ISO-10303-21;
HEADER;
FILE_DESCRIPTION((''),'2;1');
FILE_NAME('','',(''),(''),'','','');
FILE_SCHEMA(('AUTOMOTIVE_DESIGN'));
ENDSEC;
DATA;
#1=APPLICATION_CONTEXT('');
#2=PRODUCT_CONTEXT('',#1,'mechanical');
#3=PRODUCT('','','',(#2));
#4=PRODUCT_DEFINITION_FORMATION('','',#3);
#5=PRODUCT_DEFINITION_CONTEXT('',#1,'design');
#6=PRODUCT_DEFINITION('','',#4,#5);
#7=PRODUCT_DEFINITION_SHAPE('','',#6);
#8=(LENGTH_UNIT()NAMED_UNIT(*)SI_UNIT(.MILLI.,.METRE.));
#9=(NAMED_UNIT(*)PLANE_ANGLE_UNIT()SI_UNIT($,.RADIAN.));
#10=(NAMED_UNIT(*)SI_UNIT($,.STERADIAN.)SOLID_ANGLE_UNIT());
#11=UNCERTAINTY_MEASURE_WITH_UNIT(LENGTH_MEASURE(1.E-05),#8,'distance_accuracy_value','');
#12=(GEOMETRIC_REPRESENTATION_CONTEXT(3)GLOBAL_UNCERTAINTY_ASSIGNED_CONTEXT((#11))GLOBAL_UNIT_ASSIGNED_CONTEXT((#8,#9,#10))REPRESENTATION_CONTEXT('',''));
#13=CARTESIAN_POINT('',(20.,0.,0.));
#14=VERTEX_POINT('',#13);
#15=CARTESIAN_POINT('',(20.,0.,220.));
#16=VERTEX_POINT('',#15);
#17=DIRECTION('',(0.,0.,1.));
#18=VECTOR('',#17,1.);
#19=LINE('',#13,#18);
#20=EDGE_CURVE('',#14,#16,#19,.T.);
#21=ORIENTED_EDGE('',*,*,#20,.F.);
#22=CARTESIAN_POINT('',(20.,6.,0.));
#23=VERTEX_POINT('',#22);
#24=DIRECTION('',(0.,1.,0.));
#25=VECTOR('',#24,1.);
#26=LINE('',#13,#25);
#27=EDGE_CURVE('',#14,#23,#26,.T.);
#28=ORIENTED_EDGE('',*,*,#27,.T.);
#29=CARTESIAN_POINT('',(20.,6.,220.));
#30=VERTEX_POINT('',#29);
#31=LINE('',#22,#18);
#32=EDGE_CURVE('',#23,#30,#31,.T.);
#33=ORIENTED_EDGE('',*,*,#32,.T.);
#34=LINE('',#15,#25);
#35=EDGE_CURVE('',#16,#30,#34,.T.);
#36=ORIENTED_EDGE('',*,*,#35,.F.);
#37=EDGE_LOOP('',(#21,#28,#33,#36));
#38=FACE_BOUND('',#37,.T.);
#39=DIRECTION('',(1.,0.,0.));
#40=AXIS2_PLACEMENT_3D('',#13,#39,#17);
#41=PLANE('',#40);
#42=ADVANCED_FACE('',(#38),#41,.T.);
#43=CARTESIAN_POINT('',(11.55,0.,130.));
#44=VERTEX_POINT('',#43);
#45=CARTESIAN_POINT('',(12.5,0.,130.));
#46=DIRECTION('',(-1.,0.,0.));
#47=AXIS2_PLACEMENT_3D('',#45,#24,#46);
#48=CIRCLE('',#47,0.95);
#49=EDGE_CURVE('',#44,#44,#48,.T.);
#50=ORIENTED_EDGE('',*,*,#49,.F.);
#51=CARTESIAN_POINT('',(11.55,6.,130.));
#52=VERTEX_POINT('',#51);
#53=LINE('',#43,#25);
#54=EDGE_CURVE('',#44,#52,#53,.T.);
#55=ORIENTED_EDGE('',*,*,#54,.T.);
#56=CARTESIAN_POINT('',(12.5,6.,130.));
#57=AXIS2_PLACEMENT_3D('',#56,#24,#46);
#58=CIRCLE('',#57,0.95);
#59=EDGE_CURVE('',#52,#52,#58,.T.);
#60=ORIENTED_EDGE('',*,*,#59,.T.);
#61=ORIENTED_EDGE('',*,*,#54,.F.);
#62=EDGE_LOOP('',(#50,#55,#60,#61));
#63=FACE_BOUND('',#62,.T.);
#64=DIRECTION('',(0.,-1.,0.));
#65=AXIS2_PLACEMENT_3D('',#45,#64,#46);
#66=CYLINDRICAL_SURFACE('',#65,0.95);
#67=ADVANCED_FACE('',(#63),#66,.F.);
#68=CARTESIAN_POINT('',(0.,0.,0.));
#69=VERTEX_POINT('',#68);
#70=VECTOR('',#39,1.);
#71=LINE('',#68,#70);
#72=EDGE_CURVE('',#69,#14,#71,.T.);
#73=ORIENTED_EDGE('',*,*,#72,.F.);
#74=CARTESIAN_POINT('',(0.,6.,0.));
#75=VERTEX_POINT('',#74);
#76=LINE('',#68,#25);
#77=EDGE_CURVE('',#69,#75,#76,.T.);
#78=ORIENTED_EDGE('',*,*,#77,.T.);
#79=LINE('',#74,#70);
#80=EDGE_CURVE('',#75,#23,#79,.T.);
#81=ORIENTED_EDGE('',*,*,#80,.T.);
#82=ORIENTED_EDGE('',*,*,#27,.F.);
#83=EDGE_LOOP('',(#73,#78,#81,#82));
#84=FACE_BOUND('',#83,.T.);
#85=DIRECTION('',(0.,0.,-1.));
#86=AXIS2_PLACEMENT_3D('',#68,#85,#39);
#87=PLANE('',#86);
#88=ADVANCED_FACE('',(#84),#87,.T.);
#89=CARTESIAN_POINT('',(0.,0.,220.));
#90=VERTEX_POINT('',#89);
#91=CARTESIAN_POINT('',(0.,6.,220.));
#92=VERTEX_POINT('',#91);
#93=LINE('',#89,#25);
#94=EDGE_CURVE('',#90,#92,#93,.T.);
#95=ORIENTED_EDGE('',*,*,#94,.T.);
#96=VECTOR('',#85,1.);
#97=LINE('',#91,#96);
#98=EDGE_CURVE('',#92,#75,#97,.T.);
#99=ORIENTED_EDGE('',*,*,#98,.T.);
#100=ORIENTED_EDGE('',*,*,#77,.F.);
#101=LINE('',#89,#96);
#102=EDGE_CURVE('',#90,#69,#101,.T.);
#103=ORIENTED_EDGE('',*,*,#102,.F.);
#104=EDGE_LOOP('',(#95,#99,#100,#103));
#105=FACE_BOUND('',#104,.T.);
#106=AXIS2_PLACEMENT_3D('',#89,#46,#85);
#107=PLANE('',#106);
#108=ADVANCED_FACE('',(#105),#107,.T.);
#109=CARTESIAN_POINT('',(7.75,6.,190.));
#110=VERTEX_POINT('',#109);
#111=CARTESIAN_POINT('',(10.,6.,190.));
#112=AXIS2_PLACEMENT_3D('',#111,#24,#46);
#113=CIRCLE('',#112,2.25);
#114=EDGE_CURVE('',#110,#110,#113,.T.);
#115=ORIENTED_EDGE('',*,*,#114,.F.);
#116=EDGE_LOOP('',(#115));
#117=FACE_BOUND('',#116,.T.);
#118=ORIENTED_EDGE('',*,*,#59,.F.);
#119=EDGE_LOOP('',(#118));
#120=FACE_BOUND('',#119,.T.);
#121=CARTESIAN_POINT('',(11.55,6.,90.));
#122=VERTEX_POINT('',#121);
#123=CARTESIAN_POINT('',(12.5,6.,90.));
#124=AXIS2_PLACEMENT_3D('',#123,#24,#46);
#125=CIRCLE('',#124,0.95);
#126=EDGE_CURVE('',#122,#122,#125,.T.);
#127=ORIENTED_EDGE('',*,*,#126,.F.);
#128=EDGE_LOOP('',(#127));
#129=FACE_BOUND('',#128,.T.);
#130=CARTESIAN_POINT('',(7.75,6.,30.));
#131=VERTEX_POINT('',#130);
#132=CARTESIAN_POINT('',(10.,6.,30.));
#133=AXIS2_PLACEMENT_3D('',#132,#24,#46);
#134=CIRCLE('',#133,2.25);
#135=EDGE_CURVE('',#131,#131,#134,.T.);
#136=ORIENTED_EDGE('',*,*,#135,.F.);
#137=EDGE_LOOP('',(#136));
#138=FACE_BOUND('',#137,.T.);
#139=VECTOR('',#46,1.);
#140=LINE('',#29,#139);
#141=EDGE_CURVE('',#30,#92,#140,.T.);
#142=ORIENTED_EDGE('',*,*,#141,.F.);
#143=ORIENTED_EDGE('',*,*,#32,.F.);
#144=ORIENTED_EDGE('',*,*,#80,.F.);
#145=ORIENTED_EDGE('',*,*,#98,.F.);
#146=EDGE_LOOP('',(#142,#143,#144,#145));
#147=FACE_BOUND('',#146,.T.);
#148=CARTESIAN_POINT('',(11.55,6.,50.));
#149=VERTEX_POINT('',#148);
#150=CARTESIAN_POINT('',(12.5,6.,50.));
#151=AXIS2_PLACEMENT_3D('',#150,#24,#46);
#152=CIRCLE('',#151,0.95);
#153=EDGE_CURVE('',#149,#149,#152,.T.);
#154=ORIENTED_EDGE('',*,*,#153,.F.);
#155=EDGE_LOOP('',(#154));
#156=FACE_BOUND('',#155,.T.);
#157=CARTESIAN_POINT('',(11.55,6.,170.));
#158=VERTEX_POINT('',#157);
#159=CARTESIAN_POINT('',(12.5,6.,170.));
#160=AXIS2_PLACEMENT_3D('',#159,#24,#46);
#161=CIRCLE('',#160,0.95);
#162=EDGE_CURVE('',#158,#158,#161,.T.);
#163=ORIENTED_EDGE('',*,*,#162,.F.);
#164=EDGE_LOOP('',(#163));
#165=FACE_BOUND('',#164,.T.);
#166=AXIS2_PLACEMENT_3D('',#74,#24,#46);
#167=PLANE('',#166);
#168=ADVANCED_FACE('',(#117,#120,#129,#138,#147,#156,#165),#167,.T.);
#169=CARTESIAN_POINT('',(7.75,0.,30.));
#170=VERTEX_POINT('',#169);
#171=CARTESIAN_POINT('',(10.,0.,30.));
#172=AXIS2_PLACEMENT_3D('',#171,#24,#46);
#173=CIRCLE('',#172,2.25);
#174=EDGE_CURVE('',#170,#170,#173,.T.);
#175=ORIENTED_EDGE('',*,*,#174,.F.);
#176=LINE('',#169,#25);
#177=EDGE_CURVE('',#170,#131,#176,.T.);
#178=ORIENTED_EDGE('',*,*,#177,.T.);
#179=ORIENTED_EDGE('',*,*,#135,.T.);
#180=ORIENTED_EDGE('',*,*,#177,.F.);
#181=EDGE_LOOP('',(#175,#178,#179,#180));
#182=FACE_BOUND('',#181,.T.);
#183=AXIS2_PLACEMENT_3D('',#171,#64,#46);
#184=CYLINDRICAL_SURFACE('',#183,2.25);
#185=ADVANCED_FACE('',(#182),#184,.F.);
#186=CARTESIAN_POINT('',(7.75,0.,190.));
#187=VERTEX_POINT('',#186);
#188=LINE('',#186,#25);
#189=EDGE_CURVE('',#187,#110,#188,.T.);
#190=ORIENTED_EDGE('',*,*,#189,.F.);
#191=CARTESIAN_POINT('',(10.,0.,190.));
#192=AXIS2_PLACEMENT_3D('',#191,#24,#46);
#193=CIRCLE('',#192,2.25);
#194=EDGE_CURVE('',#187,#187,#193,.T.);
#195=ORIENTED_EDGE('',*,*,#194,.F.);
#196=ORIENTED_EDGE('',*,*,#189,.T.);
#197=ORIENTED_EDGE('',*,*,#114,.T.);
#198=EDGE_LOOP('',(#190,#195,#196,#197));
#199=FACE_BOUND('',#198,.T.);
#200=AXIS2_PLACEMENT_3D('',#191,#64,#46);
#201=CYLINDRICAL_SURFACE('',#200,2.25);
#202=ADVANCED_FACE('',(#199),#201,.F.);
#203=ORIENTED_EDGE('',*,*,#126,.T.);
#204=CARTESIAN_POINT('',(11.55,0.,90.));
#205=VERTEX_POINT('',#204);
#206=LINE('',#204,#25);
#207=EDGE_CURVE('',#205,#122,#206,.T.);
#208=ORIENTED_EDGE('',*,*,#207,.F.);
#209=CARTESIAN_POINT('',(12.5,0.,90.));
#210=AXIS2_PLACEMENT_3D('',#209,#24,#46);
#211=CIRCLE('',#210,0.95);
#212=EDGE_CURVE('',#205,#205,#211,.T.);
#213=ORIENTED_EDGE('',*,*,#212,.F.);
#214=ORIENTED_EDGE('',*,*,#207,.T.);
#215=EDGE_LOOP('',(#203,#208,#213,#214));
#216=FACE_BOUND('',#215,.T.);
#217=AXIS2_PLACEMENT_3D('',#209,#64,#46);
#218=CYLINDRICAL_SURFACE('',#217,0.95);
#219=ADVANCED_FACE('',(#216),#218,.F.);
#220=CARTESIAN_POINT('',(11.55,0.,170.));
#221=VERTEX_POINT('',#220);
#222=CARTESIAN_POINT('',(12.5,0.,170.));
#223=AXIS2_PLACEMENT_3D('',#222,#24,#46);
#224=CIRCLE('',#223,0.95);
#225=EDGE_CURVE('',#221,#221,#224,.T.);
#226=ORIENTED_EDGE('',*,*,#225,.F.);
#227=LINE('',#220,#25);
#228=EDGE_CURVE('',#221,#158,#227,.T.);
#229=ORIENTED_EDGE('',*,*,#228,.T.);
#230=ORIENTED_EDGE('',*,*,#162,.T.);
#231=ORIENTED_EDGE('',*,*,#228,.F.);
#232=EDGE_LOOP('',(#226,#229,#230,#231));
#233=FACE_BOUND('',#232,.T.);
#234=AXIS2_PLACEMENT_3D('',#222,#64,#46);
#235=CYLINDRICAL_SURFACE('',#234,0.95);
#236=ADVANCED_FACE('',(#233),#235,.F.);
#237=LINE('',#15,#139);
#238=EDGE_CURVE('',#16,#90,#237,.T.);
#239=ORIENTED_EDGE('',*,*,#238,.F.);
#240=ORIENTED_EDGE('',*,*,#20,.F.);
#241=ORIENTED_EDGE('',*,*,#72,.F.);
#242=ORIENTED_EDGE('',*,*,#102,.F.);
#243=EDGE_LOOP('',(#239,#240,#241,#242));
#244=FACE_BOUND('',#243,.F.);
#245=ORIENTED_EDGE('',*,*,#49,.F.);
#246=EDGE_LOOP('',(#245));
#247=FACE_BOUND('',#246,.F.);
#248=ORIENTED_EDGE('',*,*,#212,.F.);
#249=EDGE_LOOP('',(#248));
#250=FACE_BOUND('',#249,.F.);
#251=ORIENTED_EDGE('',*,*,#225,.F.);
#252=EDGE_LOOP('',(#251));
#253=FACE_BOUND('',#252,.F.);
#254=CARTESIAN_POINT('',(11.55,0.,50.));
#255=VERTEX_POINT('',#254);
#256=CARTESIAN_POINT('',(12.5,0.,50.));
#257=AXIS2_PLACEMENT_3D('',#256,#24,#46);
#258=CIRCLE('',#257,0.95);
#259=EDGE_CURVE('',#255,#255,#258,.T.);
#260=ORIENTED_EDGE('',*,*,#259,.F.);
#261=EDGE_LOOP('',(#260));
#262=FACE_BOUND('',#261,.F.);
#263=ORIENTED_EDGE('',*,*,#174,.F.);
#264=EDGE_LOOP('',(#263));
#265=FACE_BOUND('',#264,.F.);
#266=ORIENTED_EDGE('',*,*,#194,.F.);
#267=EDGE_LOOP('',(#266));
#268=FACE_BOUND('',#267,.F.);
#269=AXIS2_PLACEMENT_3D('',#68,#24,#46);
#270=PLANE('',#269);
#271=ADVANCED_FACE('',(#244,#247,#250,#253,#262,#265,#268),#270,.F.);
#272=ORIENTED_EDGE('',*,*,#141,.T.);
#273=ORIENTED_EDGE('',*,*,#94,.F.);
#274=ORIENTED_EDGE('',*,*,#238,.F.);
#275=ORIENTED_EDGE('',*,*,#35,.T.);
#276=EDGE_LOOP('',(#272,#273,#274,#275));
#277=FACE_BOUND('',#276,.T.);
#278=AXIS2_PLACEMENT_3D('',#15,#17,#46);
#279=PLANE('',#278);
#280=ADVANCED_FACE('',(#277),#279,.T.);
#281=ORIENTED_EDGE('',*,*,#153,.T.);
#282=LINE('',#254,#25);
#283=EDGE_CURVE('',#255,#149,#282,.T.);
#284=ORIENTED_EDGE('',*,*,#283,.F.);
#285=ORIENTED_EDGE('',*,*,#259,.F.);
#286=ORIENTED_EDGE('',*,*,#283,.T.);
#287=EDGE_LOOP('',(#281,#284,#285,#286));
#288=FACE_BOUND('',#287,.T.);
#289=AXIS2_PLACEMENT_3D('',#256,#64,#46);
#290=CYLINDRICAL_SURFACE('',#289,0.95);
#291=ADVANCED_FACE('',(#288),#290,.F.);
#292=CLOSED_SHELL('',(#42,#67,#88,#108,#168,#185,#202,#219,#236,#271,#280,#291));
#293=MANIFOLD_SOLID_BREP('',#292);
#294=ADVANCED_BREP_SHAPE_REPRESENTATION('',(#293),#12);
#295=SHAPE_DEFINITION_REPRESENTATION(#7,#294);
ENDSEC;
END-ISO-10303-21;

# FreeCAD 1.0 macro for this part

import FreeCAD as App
import Part
import Sketcher
from FreeCAD import Vector
Q = App.Units.Quantity

doc = App.newDocument("Part")
body = doc.addObject("PartDesign::Body", "Body")

sketch1 = doc.addObject("Sketcher::SketchObject", "Sketch")
body.addObject(sketch1)
sketch1.AttachmentSupport = (doc.XZ_Plane, [""])
sketch1.MapMode = "FlatFace"
sketch1.addGeometry(Part.LineSegment(Vector(20, 0, 0), Vector(0, 0, 0)), False)
sketch1.addGeometry(Part.LineSegment(Vector(0, 0, 0), Vector(0, 220, 0)), False)
sketch1.addGeometry(Part.LineSegment(Vector(0, 220, 0), Vector(20, 220, 0)), False)
sketch1.addGeometry(Part.LineSegment(Vector(20, 220, 0), Vector(20, 0, 0)), False)
sketch1.addGeometry(Part.Circle(Vector(12.5, 50, 0), Vector(0, 0, 1), 0.9), False)
sketch1.addGeometry(Part.Circle(Vector(12.5, 90, 0), Vector(0, 0, 1), 0.9), False)
sketch1.addGeometry(Part.Circle(Vector(10, 30, 0), Vector(0, 0, 1), 2.2), False)
sketch1.addGeometry(Part.Circle(Vector(12.5, 130, 0), Vector(0, 0, 1), 0.9), False)
sketch1.addGeometry(Part.Circle(Vector(12.5, 170, 0), Vector(0, 0, 1), 0.9), False)
sketch1.addGeometry(Part.Circle(Vector(10, 190, 0), Vector(0, 0, 1), 2.2), False)
sketch1.addConstraint(Sketcher.Constraint("Coincident", 0, 2, 1, 1))
sketch1.addConstraint(Sketcher.Constraint("Coincident", 1, 2, 2, 1))
sketch1.addConstraint(Sketcher.Constraint("Coincident", 2, 2, 3, 1))
sketch1.addConstraint(Sketcher.Constraint("Coincident", 3, 2, 0, 1))
sketch1.addConstraint(Sketcher.Constraint("Horizontal", 0))
sketch1.addConstraint(Sketcher.Constraint("Vertical", 1))
sketch1.addConstraint(Sketcher.Constraint("Horizontal", 2))
sketch1.addConstraint(Sketcher.Constraint("Vertical", 3))
sketch1.addConstraint(Sketcher.Constraint("Coincident", 0, 2, -1, 1))
sketch1.addConstraint(Sketcher.Constraint("Equal", 4, 5))
sketch1.addConstraint(Sketcher.Constraint("Equal", 5, 7))
sketch1.addConstraint(Sketcher.Constraint("Equal", 7, 8))
sketch1.addConstraint(Sketcher.Constraint("Equal", 6, 9))
sketch1.addConstraint(Sketcher.Constraint("Vertical", 4, 3, 5, 3))
sketch1.addConstraint(Sketcher.Constraint("Vertical", 5, 3, 7, 3))
sketch1.addConstraint(Sketcher.Constraint("Vertical", 7, 3, 8, 3))
sketch1.addConstraint(Sketcher.Constraint("Vertical", 6, 3, 9, 3))
sketch1.addConstraint(Sketcher.Constraint("Diameter", 4, Q("1.9 mm")))
sketch1.addConstraint(Sketcher.Constraint("Diameter", 6, Q("4.5 mm")))
sketch1.addConstraint(Sketcher.Constraint("DistanceX", 0, 2, 0, 1, Q("20 mm")))
sketch1.addConstraint(Sketcher.Constraint("DistanceY", 1, 1, 1, 2, Q("220 mm")))
sketch1.addConstraint(Sketcher.Constraint("DistanceX", -1, 1, 6, 3, Q("10 mm")))
sketch1.addConstraint(Sketcher.Constraint("DistanceY", -1, 1, 6, 3, Q("30 mm")))
sketch1.addConstraint(Sketcher.Constraint("DistanceY", 4, 3, 5, 3, Q("40 mm")))
sketch1.addConstraint(Sketcher.Constraint("DistanceY", 6, 3, 4, 3, Q("20 mm")))
sketch1.addConstraint(Sketcher.Constraint("DistanceY", 5, 3, 7, 3, Q("40 mm")))
sketch1.addConstraint(Sketcher.Constraint("DistanceY", 7, 3, 8, 3, Q("40 mm")))
sketch1.addConstraint(Sketcher.Constraint("DistanceY", 8, 3, 9, 3, Q("20 mm")))
sketch1.addConstraint(Sketcher.Constraint("DistanceX", 8, 3, 2, 2, Q("7.5 mm")))
pad1 = doc.addObject("PartDesign::Pad", "Pad")
body.addObject(pad1)
pad1.Profile = sketch1
pad1.Length = 6
pad1.Reversed = True

doc.recompute()
